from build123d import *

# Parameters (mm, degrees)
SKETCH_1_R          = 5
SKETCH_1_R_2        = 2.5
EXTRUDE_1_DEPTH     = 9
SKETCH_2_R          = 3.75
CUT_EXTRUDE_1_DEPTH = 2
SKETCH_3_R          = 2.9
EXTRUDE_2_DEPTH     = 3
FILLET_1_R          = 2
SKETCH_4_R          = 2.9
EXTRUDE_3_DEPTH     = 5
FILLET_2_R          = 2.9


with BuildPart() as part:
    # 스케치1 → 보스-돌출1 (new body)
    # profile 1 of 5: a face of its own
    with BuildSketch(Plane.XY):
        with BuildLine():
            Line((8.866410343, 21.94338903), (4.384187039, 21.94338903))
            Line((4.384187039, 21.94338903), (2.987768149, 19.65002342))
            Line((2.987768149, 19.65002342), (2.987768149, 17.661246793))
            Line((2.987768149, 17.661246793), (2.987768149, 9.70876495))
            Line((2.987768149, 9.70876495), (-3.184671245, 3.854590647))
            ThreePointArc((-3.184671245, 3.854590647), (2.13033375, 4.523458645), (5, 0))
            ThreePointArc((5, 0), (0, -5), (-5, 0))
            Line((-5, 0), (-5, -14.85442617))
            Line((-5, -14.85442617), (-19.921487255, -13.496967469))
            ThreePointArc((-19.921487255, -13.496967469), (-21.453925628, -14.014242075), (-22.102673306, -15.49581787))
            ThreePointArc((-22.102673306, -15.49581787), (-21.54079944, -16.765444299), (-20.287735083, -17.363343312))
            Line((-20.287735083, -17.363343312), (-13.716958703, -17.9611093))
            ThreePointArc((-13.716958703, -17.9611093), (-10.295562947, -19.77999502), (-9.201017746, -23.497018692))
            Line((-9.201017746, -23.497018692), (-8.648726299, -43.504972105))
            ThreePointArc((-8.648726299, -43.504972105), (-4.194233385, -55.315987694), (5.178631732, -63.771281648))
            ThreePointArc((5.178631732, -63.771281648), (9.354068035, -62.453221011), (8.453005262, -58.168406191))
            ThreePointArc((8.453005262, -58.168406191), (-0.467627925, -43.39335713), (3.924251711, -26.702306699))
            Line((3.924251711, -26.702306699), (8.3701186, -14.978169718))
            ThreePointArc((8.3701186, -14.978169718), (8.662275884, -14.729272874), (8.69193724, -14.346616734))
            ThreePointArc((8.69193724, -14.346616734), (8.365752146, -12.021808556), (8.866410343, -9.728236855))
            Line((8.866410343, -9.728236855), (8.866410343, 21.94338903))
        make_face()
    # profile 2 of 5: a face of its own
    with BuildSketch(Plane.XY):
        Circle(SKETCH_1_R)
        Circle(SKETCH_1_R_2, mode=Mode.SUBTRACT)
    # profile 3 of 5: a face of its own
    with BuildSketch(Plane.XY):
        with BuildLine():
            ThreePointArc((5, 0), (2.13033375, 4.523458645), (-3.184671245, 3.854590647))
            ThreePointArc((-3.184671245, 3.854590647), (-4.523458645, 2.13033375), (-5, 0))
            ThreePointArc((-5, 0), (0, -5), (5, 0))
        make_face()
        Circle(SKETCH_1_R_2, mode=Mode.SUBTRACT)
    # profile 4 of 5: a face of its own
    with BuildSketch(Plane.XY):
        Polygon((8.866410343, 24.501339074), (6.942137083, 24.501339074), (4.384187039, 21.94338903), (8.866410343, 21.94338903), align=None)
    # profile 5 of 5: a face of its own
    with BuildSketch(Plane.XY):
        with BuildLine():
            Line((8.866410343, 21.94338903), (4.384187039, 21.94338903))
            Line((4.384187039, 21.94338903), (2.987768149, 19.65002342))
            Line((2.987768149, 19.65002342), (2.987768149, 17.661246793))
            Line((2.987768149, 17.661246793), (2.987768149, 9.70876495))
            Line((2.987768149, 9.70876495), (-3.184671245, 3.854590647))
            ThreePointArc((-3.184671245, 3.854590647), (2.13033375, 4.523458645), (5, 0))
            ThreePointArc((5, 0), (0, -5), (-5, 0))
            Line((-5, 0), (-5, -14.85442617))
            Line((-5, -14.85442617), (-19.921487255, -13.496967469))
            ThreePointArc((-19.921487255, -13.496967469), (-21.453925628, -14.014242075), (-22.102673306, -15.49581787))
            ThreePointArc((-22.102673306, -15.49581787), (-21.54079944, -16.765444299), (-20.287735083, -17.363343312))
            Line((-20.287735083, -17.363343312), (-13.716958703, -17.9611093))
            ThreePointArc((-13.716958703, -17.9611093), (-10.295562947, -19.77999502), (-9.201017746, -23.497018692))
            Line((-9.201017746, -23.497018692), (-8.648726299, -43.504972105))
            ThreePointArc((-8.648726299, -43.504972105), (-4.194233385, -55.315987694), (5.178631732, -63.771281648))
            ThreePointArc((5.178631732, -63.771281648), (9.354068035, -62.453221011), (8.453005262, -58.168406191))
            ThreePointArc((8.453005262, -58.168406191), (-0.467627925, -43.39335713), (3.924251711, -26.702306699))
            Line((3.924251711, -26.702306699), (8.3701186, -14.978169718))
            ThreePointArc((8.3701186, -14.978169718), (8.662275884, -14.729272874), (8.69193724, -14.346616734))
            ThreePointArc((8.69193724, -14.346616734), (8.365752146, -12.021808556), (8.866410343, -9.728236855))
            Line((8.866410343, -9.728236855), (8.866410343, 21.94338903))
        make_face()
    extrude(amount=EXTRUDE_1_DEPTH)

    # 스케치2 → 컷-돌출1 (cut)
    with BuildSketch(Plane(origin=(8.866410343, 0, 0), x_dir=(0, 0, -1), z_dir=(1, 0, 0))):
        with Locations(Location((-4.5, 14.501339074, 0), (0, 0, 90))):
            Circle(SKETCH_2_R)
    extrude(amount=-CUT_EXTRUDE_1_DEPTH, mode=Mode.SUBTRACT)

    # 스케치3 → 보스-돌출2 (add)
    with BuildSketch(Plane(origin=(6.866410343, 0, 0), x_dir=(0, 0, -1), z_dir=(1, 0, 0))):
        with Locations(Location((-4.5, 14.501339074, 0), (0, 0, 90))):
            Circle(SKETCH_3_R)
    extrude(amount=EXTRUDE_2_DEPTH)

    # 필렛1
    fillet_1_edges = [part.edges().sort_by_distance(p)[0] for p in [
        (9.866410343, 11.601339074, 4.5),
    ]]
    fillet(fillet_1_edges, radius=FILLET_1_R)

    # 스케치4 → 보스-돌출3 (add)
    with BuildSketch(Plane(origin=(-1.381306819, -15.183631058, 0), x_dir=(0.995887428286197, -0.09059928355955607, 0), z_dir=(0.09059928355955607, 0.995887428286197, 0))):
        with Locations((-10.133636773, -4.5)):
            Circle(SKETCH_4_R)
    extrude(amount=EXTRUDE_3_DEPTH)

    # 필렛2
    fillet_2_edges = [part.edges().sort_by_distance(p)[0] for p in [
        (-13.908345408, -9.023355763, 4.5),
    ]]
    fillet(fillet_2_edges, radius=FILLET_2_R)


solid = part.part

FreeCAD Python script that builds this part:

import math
import FreeCAD as App
import Part
import Sketcher
from FreeCAD import Vector


def edges_at(feature, points):
    """Names of the edges that pass closest to the given points."""
    edges = feature.Shape.Edges
    near = lambda p: min(range(len(edges)), key=lambda i: edges[i].distToShape(Part.Vertex(*p))[0])
    return sorted({f"Edge{near(p) + 1}" for p in points})

doc = App.newDocument("Part")
body = doc.addObject("PartDesign::Body", "Body")

sketch1 = doc.addObject("Sketcher::SketchObject", "Sketch")
body.addObject(sketch1)
sketch1.AttachmentSupport = (doc.XY_Plane, [""])
sketch1.MapMode = "FlatFace"
sketch1.addGeometry([
    Part.LineSegment(Vector(4.384187, 21.943389, 0), Vector(2.987768, 19.650023, 0)),
    Part.LineSegment(Vector(2.987768, 19.650023, 0), Vector(2.987768, 9.708765, 0)),
    Part.LineSegment(Vector(2.987768, 9.708765, 0), Vector(-3.184671, 3.854591, 0)),
    Part.ArcOfCircle(Part.Circle(Vector(0, 0, 0), Vector(0, 0, 1), 5), math.radians(129.563592), math.radians(180)),
    Part.LineSegment(Vector(-5, 0, 0), Vector(-5, -14.854426, 0)),
    Part.LineSegment(Vector(-5, -14.854426, 0), Vector(-19.921487, -13.496967, 0)),
    Part.ArcOfCircle(Part.Circle(Vector(-20.102686, -15.488742, 0), Vector(0, 0, 1), 2), math.radians(84.801916), math.radians(180.2027)),
    Part.ArcOfCircle(Part.Circle(Vector(-20.106537, -15.371568, 0), Vector(0, 0, 1), 2), math.radians(-176.438223), math.radians(-95.198084)),
    Part.LineSegment(Vector(-20.287735, -17.363343, 0), Vector(-13.716959, -17.961109, 0)),
    Part.ArcOfCircle(Part.Circle(Vector(-14.169955, -22.940546, 0), Vector(0, 0, 1), 5), math.radians(-6.38994), math.radians(84.801916)),
    Part.LineSegment(Vector(-9.201018, -23.497019, 0), Vector(-8.648726, -43.504972, 0)),
    Part.ArcOfCircle(Part.Circle(Vector(17.912353, -40.23304, 0), Vector(0, 0, 1), 26.761848), math.radians(-172.977386), math.radians(-118.412508)),
    Part.ArcOfCircle(Part.Circle(Vector(6.538985, -60.80806, 0), Vector(0, 0, 1), 3.260559), math.radians(-114.658876), math.radians(54.054036)),
    Part.ArcOfCircle(Part.Circle(Vector(21.454199, -40.238262, 0), Vector(0, 0, 1), 22.147712), math.radians(142.326053), math.radians(234.054036)),
    Part.LineSegment(Vector(3.924252, -26.702307, 0), Vector(8.370119, -14.97817, 0)),
    Part.ArcOfCircle(Part.Circle(Vector(8.21678, -14.502263, 0), Vector(0, 0, 1), 0.5), math.radians(-72.140919), math.radians(18.137128)),
    Part.ArcOfCircle(Part.Circle(Vector(15.021518, -12.27325, 0), Vector(0, 0, 1), 6.660514), math.radians(157.535891), math.radians(198.137128)),
    Part.LineSegment(Vector(8.86641, -9.728237, 0), Vector(8.86641, 24.501339, 0)),
    Part.LineSegment(Vector(8.86641, 24.501339, 0), Vector(6.942137, 24.501339, 0)),
    Part.LineSegment(Vector(6.942137, 24.501339, 0), Vector(4.384187, 21.943389, 0)),
    Part.Circle(Vector(0, 0, 0), Vector(0, 0, 1), 2.5),
], False)
sketch1.addConstraint([
    Sketcher.Constraint("Coincident", 0, 2, 1, 1),
    Sketcher.Constraint("Coincident", 1, 2, 2, 1),
    Sketcher.Constraint("Coincident", 2, 2, 3, 1),
    Sketcher.Constraint("Coincident", 3, 2, 4, 1),
    Sketcher.Constraint("Coincident", 4, 2, 5, 1),
    Sketcher.Constraint("Coincident", 5, 2, 6, 1),
    Sketcher.Constraint("Coincident", 6, 2, 7, 1),
    Sketcher.Constraint("Coincident", 7, 2, 8, 1),
    Sketcher.Constraint("Coincident", 8, 2, 9, 2),
    Sketcher.Constraint("Coincident", 9, 1, 10, 1),
    Sketcher.Constraint("Coincident", 10, 2, 11, 1),
    Sketcher.Constraint("Coincident", 11, 2, 12, 1),
    Sketcher.Constraint("Coincident", 12, 2, 13, 2),
    Sketcher.Constraint("Coincident", 13, 1, 14, 1),
    Sketcher.Constraint("Coincident", 14, 2, 15, 1),
    Sketcher.Constraint("Coincident", 15, 2, 16, 2),
    Sketcher.Constraint("Coincident", 16, 1, 17, 1),
    Sketcher.Constraint("Coincident", 17, 2, 18, 1),
    Sketcher.Constraint("Coincident", 18, 2, 19, 1),
    Sketcher.Constraint("Coincident", 19, 2, 0, 1),
    Sketcher.Constraint("Vertical", 1),
    Sketcher.Constraint("Vertical", 4),
    Sketcher.Constraint("Vertical", 17),
    Sketcher.Constraint("Horizontal", 18),
    Sketcher.Constraint("Coincident", 3, 3, -1, 1),
    Sketcher.Constraint("Coincident", 20, 3, -1, 1),
    Sketcher.Constraint("PointOnObject", 3, 2, -1),
    Sketcher.Constraint("Diameter", 20, 5.0),
    Sketcher.Constraint("Radius", 3, 5.0),
    Sketcher.Constraint("Radius", 6, 2.0),
    Sketcher.Constraint("Radius", 7, 2.0),
    Sketcher.Constraint("Radius", 9, 5.0),
    Sketcher.Constraint("Radius", 15, 0.5),
    Sketcher.Constraint("Radius", 12, 3.260559),
    Sketcher.Constraint("Radius", 13, 22.147712),
    Sketcher.Constraint("Radius", 11, 26.761848),
    Sketcher.Constraint("Radius", 16, 6.660514),
    Sketcher.Constraint("DistanceY", 1, 2, 1, 1, 9.941258),
    Sketcher.Constraint("DistanceX", -1, 1, 13, 3, 21.454199),
    Sketcher.Constraint("DistanceY", 12, 3, 13, 3, 20.569799),
    Sketcher.Constraint("DistanceY", 7, 3, 5, 2, 1.874601),
    Sketcher.Constraint("DistanceX", 6, 3, 5, 2, 0.181199),
    Sketcher.Constraint("DistanceY", 7, 2, 6, 3, 1.874601),
    Sketcher.Constraint("DistanceX", 14, 2, 16, 3, 6.6514),
    Sketcher.Constraint("DistanceY", 2, 2, 19, 2, 18.088798),
    Sketcher.Constraint("Distance", 8, 6.597911),
    Sketcher.Constraint("DistanceX", 18, 2, 18, 1, 1.924273),
    Sketcher.Constraint("DistanceY", 4, 2, 4, 1, 14.854426),
    Sketcher.Constraint("DistanceY", 17, 1, 17, 2, 34.229576),
    Sketcher.Constraint("DistanceY", 7, 3, -1, 1, 15.371568),
    Sketcher.Constraint("DistanceY", 11, 3, -1, 1, 40.23304),
    Sketcher.Constraint("DistanceY", 12, 3, -1, 1, 60.80806),
    Sketcher.Constraint("DistanceX", -1, 1, 15, 3, 8.21678),
    Sketcher.Constraint("DistanceX", -1, 1, 16, 3, 15.021518),
    Sketcher.Constraint("DistanceY", 16, 3, -1, 1, 12.27325),
    Sketcher.Constraint("DistanceX", -1, 1, 0, 2, 2.987768),
    Sketcher.Constraint("DistanceX", 2, 2, -1, 1, 3.184671),
    Sketcher.Constraint("DistanceX", 8, 2, -1, 1, 13.716959),
    Sketcher.Constraint("DistanceY", 8, 2, -1, 1, 17.961109),
    Sketcher.Constraint("DistanceY", 9, 1, -1, 1, 23.497019),
    Sketcher.Constraint("DistanceX", -1, 1, 11, 2, 5.178632),
    Sketcher.Constraint("DistanceX", -1, 1, 13, 1, 3.924252),
    Sketcher.Constraint("DistanceX", -1, 1, 16, 1, 8.86641),
    Sketcher.Constraint("DistanceX", 7, 3, 6, 3, 0.003851),
    Sketcher.Constraint("DistanceX", 6, 3, 9, 3, 5.932731),
    Sketcher.Constraint("DistanceY", 7, 3, 0, 2, 35.021592),
    Sketcher.Constraint("DistanceX", 9, 1, 10, 2, 0.552291),
    Sketcher.Constraint("DistanceX", 12, 3, 12, 2, 1.91402),
    Sketcher.Constraint("DistanceX", 14, 2, 15, 2, 0.321819),
    Sketcher.Constraint("DistanceX", 0, 2, 19, 2, 1.396419),
])
pad1 = doc.addObject("PartDesign::Pad", "Pad")
body.addObject(pad1)
pad1.Profile = sketch1
pad1.Length = 9

sketch2 = doc.addObject("Sketcher::SketchObject", "Sketch001")
body.addObject(sketch2)
sketch2.AttachmentSupport = (doc.YZ_Plane, [""])
sketch2.MapMode = "FlatFace"
sketch2.AttachmentOffset = App.Placement(Vector(0, 0, 8.86641), App.Rotation())
sketch2.addGeometry(Part.Circle(Vector(14.5, 4.5, 0), Vector(0, 0, 1), 3.8), False)
sketch2.addConstraint([
    Sketcher.Constraint("Diameter", 0, 7.5),
    Sketcher.Constraint("DistanceY", -1, 1, 0, 3, 4.5),
    Sketcher.Constraint("DistanceX", -1, 1, 0, 3, 14.501339),
])
pocket1 = doc.addObject("PartDesign::Pocket", "Pocket")
body.addObject(pocket1)
pocket1.Profile = sketch2
pocket1.Length = 2

sketch3 = doc.addObject("Sketcher::SketchObject", "Sketch002")
body.addObject(sketch3)
sketch3.AttachmentSupport = (doc.YZ_Plane, [""])
sketch3.MapMode = "FlatFace"
sketch3.AttachmentOffset = App.Placement(Vector(0, 0, 6.86641), App.Rotation())
sketch3.addGeometry(Part.Circle(Vector(14.5, 4.5, 0), Vector(0, 0, 1), 2.9), False)
sketch3.addConstraint([
    Sketcher.Constraint("Diameter", 0, 5.8),
    Sketcher.Constraint("DistanceY", -1, 1, 0, 3, 4.5),
    Sketcher.Constraint("DistanceX", -1, 1, 0, 3, 14.501339),
])
pad2 = doc.addObject("PartDesign::Pad", "Pad001")
body.addObject(pad2)
pad2.Profile = sketch3
pad2.Length = 3
doc.recompute()

fillet = doc.addObject("PartDesign::Fillet", "Fillet")
body.addObject(fillet)
fillet.Base = (pad2, edges_at(pad2, [(9.866, 11.601, 4.5)]))
fillet.Radius = 2

sketch4 = doc.addObject("Sketcher::SketchObject", "Sketch003")
body.addObject(sketch4)
sketch4.Placement = App.Placement(Vector(-1.381307, -15.183631, 0), App.Rotation(Vector(0.995887428, -0.090599284, 0), Vector(0, 0, -1), Vector(0.090599284, 0.995887428, 0), "ZXY"))
sketch4.addGeometry(Part.Circle(Vector(-10.1, -4.5, 0), Vector(0, 0, 1), 2.9), False)
sketch4.addConstraint([
    Sketcher.Constraint("Diameter", 0, 5.8),
    Sketcher.Constraint("DistanceY", 0, 3, -1, 1, 4.5),
    Sketcher.Constraint("DistanceX", 0, 3, -1, 1, 10.133637),
])
pad3 = doc.addObject("PartDesign::Pad", "Pad002")
body.addObject(pad3)
pad3.Profile = sketch4
pad3.Length = 5
doc.recompute()

fillet2 = doc.addObject("PartDesign::Fillet", "Fillet001")
body.addObject(fillet2)
fillet2.Base = (pad3, edges_at(pad3, [(-13.908, -9.023, 4.5)]))
fillet2.Radius = 2.9

doc.recompute()
